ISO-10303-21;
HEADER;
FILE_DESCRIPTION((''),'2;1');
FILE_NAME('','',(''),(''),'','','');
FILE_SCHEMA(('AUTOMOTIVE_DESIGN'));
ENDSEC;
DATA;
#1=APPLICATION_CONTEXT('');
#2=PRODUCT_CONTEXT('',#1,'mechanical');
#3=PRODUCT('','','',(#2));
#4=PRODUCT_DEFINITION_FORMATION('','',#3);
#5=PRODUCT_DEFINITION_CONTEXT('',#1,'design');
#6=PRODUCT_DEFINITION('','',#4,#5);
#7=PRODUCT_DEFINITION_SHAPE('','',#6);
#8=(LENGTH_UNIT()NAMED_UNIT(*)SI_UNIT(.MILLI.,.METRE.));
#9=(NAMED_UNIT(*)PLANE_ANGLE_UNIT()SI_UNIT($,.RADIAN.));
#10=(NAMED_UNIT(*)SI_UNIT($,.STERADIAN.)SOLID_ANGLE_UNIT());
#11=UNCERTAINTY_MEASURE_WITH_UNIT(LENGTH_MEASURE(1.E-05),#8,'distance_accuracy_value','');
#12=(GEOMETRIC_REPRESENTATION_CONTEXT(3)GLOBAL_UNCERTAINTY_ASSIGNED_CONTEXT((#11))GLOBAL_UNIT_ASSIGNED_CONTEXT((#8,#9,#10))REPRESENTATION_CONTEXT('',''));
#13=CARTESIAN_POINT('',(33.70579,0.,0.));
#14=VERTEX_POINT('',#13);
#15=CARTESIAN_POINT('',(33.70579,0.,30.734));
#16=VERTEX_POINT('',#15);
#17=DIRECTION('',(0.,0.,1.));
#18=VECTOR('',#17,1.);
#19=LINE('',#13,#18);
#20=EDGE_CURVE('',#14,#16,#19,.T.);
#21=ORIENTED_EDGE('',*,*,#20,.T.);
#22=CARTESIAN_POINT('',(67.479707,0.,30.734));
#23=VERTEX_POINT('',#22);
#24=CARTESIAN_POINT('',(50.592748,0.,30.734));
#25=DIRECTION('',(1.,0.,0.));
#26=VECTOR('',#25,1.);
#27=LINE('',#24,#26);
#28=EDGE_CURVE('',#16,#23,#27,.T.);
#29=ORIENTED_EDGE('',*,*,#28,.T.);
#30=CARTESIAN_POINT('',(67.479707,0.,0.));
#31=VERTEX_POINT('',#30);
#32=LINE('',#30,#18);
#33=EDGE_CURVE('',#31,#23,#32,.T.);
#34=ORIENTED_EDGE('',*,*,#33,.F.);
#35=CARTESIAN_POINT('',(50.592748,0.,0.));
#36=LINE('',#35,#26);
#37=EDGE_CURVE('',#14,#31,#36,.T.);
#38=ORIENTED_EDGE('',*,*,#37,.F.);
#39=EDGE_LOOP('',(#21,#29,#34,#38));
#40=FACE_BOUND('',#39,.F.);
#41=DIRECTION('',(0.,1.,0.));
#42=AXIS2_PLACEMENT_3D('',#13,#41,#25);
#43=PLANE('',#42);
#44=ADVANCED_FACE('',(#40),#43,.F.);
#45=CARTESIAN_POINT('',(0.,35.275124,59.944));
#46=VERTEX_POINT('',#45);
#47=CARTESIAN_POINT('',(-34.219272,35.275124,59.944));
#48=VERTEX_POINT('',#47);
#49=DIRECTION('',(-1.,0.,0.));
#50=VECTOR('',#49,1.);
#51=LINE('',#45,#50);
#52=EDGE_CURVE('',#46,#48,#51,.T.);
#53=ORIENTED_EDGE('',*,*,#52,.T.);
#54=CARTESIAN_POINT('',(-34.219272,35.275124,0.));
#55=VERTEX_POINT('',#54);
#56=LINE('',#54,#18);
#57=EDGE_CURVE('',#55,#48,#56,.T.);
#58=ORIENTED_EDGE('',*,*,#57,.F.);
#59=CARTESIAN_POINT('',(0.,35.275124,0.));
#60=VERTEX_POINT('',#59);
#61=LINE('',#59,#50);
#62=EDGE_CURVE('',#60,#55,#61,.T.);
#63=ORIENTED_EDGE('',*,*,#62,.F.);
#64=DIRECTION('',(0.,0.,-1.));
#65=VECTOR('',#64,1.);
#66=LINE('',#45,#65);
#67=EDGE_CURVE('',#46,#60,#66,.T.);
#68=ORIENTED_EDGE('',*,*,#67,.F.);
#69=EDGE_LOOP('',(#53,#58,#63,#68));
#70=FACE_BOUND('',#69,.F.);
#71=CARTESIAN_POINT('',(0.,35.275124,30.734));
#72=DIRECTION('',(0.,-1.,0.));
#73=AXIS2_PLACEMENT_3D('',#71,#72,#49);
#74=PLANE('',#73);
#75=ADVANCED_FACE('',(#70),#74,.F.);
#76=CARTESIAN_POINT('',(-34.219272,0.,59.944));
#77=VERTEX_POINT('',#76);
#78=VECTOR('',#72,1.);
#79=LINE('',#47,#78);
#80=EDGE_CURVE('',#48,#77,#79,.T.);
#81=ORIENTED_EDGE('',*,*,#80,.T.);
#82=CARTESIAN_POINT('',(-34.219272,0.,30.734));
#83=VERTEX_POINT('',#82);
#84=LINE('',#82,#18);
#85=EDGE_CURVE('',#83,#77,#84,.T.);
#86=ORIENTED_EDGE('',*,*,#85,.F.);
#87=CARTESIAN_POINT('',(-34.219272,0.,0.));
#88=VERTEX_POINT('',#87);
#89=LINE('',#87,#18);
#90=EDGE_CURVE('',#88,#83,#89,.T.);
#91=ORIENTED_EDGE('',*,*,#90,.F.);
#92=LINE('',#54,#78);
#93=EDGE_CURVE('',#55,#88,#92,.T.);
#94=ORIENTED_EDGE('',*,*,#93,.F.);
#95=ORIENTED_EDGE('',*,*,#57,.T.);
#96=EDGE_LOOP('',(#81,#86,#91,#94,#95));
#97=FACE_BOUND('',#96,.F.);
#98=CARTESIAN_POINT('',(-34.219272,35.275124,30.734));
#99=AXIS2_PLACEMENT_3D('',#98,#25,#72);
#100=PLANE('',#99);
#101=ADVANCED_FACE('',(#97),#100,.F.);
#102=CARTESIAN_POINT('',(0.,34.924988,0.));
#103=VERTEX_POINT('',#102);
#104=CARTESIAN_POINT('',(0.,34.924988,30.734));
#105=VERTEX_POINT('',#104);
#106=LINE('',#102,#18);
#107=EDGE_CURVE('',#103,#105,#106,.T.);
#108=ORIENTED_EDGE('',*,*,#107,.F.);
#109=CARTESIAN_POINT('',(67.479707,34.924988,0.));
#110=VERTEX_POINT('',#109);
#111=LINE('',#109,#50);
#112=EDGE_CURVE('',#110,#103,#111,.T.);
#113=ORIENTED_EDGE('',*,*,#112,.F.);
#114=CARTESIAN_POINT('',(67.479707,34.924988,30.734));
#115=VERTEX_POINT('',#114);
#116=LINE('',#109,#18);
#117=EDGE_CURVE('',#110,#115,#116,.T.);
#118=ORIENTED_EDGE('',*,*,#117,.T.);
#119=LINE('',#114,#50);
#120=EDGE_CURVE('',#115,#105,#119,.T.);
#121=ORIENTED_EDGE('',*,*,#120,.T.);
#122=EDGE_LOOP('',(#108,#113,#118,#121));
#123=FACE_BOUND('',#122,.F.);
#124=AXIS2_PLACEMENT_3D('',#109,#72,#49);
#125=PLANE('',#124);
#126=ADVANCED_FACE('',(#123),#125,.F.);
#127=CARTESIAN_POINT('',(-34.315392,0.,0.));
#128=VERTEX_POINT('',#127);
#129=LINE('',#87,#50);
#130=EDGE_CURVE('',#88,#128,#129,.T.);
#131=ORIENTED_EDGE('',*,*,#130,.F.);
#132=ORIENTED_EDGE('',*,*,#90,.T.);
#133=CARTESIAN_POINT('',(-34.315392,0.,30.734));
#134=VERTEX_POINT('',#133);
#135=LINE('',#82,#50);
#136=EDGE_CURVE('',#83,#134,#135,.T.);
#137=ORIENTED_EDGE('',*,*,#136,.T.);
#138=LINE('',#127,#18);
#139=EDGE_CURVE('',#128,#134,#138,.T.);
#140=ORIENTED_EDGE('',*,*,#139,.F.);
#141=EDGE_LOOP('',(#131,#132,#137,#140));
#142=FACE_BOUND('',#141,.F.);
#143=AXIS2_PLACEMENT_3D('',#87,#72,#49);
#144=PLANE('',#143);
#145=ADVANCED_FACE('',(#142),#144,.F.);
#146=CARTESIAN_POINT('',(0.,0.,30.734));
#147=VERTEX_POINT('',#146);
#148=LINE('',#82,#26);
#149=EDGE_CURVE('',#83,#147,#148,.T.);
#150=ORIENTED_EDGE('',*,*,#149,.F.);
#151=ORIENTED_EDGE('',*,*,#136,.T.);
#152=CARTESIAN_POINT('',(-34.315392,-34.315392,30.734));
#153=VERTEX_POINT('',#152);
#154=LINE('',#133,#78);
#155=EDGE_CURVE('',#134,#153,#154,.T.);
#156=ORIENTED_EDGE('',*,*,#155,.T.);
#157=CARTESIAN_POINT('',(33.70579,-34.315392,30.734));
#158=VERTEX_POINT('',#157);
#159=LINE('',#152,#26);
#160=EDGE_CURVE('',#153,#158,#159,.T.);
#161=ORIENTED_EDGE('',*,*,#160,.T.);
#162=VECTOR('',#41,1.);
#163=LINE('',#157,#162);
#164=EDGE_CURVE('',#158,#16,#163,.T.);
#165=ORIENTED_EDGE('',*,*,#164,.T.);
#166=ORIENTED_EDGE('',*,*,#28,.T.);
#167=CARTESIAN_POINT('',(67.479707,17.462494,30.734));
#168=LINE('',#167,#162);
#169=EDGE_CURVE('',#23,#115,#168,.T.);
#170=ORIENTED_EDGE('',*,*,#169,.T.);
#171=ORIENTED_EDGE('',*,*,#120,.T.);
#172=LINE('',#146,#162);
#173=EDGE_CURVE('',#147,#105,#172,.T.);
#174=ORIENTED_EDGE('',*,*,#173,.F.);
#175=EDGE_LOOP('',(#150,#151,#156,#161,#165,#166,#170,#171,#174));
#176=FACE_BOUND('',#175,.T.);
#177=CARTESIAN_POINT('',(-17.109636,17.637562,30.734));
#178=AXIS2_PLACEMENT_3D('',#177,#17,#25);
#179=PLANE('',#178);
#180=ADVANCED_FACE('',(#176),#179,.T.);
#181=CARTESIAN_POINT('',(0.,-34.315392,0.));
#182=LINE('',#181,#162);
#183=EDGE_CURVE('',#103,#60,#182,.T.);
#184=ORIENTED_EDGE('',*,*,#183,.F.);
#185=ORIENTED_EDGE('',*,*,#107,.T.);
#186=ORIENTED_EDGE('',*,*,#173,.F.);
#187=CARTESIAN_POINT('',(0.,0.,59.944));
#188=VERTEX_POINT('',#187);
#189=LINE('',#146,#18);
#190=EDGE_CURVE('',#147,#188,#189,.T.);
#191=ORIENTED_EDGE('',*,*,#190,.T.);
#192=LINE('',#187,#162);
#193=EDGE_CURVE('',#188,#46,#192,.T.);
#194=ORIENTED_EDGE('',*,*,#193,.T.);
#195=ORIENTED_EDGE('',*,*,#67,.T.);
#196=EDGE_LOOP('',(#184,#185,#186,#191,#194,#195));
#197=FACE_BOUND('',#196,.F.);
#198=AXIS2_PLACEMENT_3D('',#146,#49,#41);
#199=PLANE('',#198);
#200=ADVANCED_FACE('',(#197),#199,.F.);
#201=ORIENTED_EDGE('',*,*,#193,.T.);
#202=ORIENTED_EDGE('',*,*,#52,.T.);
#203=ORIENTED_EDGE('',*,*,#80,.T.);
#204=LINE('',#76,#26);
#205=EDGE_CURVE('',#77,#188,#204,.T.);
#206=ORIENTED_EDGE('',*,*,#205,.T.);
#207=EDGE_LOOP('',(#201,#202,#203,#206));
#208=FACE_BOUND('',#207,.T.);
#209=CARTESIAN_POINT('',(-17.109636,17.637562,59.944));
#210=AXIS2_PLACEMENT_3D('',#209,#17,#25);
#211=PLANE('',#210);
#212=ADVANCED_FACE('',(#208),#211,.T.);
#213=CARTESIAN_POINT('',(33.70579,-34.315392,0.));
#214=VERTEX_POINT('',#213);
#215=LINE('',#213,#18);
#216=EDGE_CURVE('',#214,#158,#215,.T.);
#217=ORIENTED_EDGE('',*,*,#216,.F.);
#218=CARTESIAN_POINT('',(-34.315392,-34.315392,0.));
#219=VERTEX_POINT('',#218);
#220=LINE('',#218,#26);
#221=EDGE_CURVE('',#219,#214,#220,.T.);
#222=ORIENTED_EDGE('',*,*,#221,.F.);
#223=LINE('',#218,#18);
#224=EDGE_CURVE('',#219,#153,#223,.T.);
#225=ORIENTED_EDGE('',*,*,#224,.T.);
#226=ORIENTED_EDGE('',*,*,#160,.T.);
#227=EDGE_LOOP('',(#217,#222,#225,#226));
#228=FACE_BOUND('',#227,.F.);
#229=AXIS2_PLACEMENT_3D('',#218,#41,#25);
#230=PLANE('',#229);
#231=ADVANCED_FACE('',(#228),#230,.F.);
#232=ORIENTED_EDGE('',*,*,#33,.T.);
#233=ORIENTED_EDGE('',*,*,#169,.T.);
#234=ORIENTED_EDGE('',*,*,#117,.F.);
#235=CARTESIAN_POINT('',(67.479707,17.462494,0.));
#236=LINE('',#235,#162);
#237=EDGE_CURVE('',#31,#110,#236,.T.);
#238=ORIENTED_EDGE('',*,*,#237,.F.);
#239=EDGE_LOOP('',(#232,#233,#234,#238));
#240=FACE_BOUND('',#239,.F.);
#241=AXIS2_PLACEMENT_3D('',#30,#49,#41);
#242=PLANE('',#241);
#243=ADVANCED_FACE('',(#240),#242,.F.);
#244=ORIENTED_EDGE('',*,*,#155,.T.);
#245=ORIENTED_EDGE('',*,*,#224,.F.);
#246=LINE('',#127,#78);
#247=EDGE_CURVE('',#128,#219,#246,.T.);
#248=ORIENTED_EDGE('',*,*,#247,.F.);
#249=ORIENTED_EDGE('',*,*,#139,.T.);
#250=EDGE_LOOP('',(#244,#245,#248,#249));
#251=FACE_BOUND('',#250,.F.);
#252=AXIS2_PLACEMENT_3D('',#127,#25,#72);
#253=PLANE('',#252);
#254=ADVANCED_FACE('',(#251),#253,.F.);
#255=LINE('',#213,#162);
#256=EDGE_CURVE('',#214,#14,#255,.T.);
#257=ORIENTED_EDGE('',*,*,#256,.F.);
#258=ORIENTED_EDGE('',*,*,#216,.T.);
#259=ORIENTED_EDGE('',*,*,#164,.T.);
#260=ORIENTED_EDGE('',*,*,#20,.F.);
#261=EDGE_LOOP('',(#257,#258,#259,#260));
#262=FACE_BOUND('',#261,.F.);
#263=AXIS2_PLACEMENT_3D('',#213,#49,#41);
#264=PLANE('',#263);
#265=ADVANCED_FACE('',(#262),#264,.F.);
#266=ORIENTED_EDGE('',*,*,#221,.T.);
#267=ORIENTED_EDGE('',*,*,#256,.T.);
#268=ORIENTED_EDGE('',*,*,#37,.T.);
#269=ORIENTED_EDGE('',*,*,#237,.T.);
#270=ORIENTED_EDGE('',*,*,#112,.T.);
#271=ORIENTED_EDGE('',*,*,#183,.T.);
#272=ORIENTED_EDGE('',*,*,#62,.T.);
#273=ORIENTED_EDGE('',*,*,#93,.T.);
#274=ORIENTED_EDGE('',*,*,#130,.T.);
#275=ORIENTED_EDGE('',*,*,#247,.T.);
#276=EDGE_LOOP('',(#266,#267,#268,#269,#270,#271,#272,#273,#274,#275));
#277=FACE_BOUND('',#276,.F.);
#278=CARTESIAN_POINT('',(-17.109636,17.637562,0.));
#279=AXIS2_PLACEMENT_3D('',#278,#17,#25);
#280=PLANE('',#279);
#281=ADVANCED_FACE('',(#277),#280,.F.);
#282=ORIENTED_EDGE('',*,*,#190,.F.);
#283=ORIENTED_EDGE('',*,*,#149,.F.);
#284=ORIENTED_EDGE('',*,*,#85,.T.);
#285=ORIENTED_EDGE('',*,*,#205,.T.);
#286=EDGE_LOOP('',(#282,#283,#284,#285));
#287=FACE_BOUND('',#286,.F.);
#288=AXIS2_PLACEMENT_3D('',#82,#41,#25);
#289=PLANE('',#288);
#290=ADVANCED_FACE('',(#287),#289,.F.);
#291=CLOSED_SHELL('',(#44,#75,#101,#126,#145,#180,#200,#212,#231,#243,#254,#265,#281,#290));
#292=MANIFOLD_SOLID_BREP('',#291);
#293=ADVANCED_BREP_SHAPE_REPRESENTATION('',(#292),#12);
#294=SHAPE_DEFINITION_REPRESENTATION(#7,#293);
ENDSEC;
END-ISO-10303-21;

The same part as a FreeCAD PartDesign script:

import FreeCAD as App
import Part
import Sketcher
from FreeCAD import Vector
Q = App.Units.Quantity

doc = App.newDocument("Part")
body = doc.addObject("PartDesign::Body", "Body")

# Sketch on XY plane
sketch1 = body.newObject("Sketcher::SketchObject", "Sketch")
sketch1.AttachmentSupport = (doc.getObject("XY_Plane"), [""])
sketch1.MapMode = "FlatFace"
sketch1.addGeometry(Part.LineSegment(Vector(-27.523274, 56.610372, 0), Vector(-122.91266, 56.610372, 0)), False)
sketch1.addGeometry(Part.LineSegment(Vector(-122.91266, 56.610372, 0), Vector(-122.91266, -59.505619, 0)), False)
sketch1.addGeometry(Part.LineSegment(Vector(-122.91266, -59.505619, 0), Vector(17.935978, -59.505619, 0)), False)
sketch1.addGeometry(Part.LineSegment(Vector(17.935978, -59.505619, 0), Vector(17.935978, 0, 0)), False)
sketch1.addGeometry(Part.LineSegment(Vector(17.935978, 0, 0), Vector(-27.523274, 0, 0)), False)
sketch1.addGeometry(Part.LineSegment(Vector(-27.523274, 0, 0), Vector(-27.523274, 56.610372, 0)), False)
sketch1.addConstraint(Sketcher.Constraint("Coincident", 0, 2, 1, 1))
sketch1.addConstraint(Sketcher.Constraint("Coincident", 1, 2, 2, 1))
sketch1.addConstraint(Sketcher.Constraint("Coincident", 2, 2, 3, 1))
sketch1.addConstraint(Sketcher.Constraint("Coincident", 3, 2, 4, 1))
sketch1.addConstraint(Sketcher.Constraint("Coincident", 4, 2, 5, 1))
sketch1.addConstraint(Sketcher.Constraint("Coincident", 5, 2, 0, 1))
sketch1.addConstraint(Sketcher.Constraint("Horizontal", 0))
sketch1.addConstraint(Sketcher.Constraint("Vertical", 1))
sketch1.addConstraint(Sketcher.Constraint("Horizontal", 2))
sketch1.addConstraint(Sketcher.Constraint("Vertical", 3))
sketch1.addConstraint(Sketcher.Constraint("Horizontal", 4))
sketch1.addConstraint(Sketcher.Constraint("Vertical", 5))
sketch1.addConstraint(Sketcher.Constraint("PointOnObject", 3, 2, -1))
sketch1.addConstraint(Sketcher.Constraint("DistanceX", 2, 1, 2, 2, 140.848638))
sketch1.addConstraint(Sketcher.Constraint("DistanceX", 4, 2, 4, 1, 45.459252))
sketch1.addConstraint(Sketcher.Constraint("DistanceY", 1, 2, 1, 1, 116.115991))
sketch1.addConstraint(Sketcher.Constraint("DistanceY", 3, 1, 3, 2, 59.505619))
sketch1.addConstraint(Sketcher.Constraint("DistanceX", 0, 2, -1, 1, 122.91266))
pad1 = body.newObject("PartDesign::Pad", "Pad")
pad1.Profile = sketch1
pad1.Length = Q("1.52 in")

# Sketch on XY plane
sketch2 = body.newObject("Sketcher::SketchObject", "Sketch001")
sketch2.AttachmentSupport = (doc.getObject("XY_Plane"), [""])
sketch2.MapMode = "FlatFace"
sketch2.AttachmentOffset = App.Placement(Vector(0, 0, 1.52 * 25.4), App.Rotation())
sketch2.addGeometry(Part.LineSegment(Vector(-122.91266, 0, 0), Vector(-122.91266, -59.505619, 0)), False)
sketch2.addGeometry(Part.LineSegment(Vector(-122.91266, -59.505619, 0), Vector(-77.239774, -59.505619, 0)), False)
sketch2.addGeometry(Part.LineSegment(Vector(-77.239774, -59.505619, 0), Vector(-77.239774, 0, 0)), False)
sketch2.addGeometry(Part.LineSegment(Vector(-77.239774, 0, 0), Vector(-122.91266, 0, 0)), False)
sketch2.addConstraint(Sketcher.Constraint("Coincident", 0, 2, 1, 1))
sketch2.addConstraint(Sketcher.Constraint("Coincident", 1, 2, 2, 1))
sketch2.addConstraint(Sketcher.Constraint("Coincident", 2, 2, 3, 1))
sketch2.addConstraint(Sketcher.Constraint("Coincident", 3, 2, 0, 1))
sketch2.addConstraint(Sketcher.Constraint("Vertical", 0))
sketch2.addConstraint(Sketcher.Constraint("Horizontal", 1))
sketch2.addConstraint(Sketcher.Constraint("Vertical", 2))
sketch2.addConstraint(Sketcher.Constraint("Horizontal", 3))
sketch2.addConstraint(Sketcher.Constraint("PointOnObject", 2, 2, -1))
sketch2.addConstraint(Sketcher.Constraint("DistanceY", 0, 2, 0, 1, 59.505619))
sketch2.addConstraint(Sketcher.Constraint("DistanceX", 1, 1, 1, 2, 45.672886))
sketch2.addConstraint(Sketcher.Constraint("DistanceX", 0, 2, -1, 1, 122.91266))
pad2 = body.newObject("PartDesign::Pad", "Pad001")
pad2.Profile = sketch2
pad2.Length = Q("1.39 in")
body2 = doc.addObject("PartDesign::Body", "Body001")

# Sketch on XY plane
sketch3 = body2.newObject("Sketcher::SketchObject", "Sketch002")
sketch3.AttachmentSupport = (doc.getObject("XY_Plane001"), [""])
sketch3.MapMode = "FlatFace"
sketch3.addGeometry(Part.LineSegment(Vector(0, 35.275124, 0), Vector(-34.219272, 35.275124, 0)), False)
sketch3.addGeometry(Part.LineSegment(Vector(-34.219272, 35.275124, 0), Vector(-34.219272, 0, 0)), False)
sketch3.addGeometry(Part.LineSegment(Vector(-34.219272, 0, 0), Vector(-34.315392, 0, 0)), False)
sketch3.addGeometry(Part.LineSegment(Vector(-34.315392, 0, 0), Vector(-34.315392, -34.315392, 0)), False)
sketch3.addGeometry(Part.LineSegment(Vector(-34.315392, -34.315392, 0), Vector(33.70579, -34.315392, 0)), False)
sketch3.addGeometry(Part.LineSegment(Vector(33.70579, -34.315392, 0), Vector(33.70579, 0, 0)), False)
sketch3.addGeometry(Part.LineSegment(Vector(33.70579, 0, 0), Vector(67.479707, 0, 0)), False)
sketch3.addGeometry(Part.LineSegment(Vector(67.479707, 0, 0), Vector(67.479707, 34.924988, 0)), False)
sketch3.addGeometry(Part.LineSegment(Vector(67.479707, 34.924988, 0), Vector(0, 34.924988, 0)), False)
sketch3.addGeometry(Part.LineSegment(Vector(0, 34.924988, 0), Vector(0, 35.275124, 0)), False)
sketch3.addConstraint(Sketcher.Constraint("Coincident", 0, 2, 1, 1))
sketch3.addConstraint(Sketcher.Constraint("Coincident", 1, 2, 2, 1))
sketch3.addConstraint(Sketcher.Constraint("Coincident", 2, 2, 3, 1))
sketch3.addConstraint(Sketcher.Constraint("Coincident", 3, 2, 4, 1))
sketch3.addConstraint(Sketcher.Constraint("Coincident", 4, 2, 5, 1))
sketch3.addConstraint(Sketcher.Constraint("Coincident", 5, 2, 6, 1))
sketch3.addConstraint(Sketcher.Constraint("Coincident", 6, 2, 7, 1))
sketch3.addConstraint(Sketcher.Constraint("Coincident", 7, 2, 8, 1))
sketch3.addConstraint(Sketcher.Constraint("Coincident", 8, 2, 9, 1))
sketch3.addConstraint(Sketcher.Constraint("Coincident", 9, 2, 0, 1))
sketch3.addConstraint(Sketcher.Constraint("Horizontal", 0))
sketch3.addConstraint(Sketcher.Constraint("Vertical", 1))
sketch3.addConstraint(Sketcher.Constraint("Horizontal", 2))
sketch3.addConstraint(Sketcher.Constraint("Vertical", 3))
sketch3.addConstraint(Sketcher.Constraint("Horizontal", 4))
sketch3.addConstraint(Sketcher.Constraint("Vertical", 5))
sketch3.addConstraint(Sketcher.Constraint("Horizontal", 6))
sketch3.addConstraint(Sketcher.Constraint("Vertical", 7))
sketch3.addConstraint(Sketcher.Constraint("Horizontal", 8))
sketch3.addConstraint(Sketcher.Constraint("Vertical", 9))
sketch3.addConstraint(Sketcher.Constraint("PointOnObject", 1, 2, -1))
sketch3.addConstraint(Sketcher.Constraint("PointOnObject", 5, 2, -1))
sketch3.addConstraint(Sketcher.Constraint("PointOnObject", 8, 2, -2))
sketch3.addConstraint(Sketcher.Constraint("DistanceX", 2, 2, 2, 1, 0.09612))
sketch3.addConstraint(Sketcher.Constraint("DistanceX", 4, 1, 4, 2, 68.021182))
sketch3.addConstraint(Sketcher.Constraint("DistanceX", 2, 2, 6, 2, 101.7951))
sketch3.addConstraint(Sketcher.Constraint("DistanceX", 0, 2, 0, 1, 34.219272))
sketch3.addConstraint(Sketcher.Constraint("DistanceY", 1, 2, 1, 1, 35.275124))
sketch3.addConstraint(Sketcher.Constraint("DistanceY", 3, 2, 3, 1, 34.315392))
sketch3.addConstraint(Sketcher.Constraint("DistanceY", 7, 1, 7, 2, 34.924988))
pad3 = body2.newObject("PartDesign::Pad", "Pad002")
pad3.Profile = sketch3
pad3.Length = Q("1.21 in")

# Sketch on XY plane
sketch4 = body2.newObject("Sketcher::SketchObject", "Sketch003")
sketch4.AttachmentSupport = (doc.getObject("XY_Plane001"), [""])
sketch4.MapMode = "FlatFace"
sketch4.AttachmentOffset = App.Placement(Vector(0, 0, 1.21 * 25.4), App.Rotation())
sketch4.addGeometry(Part.LineSegment(Vector(0, 35.275124, 0), Vector(-34.219272, 35.275124, 0)), False)
sketch4.addGeometry(Part.LineSegment(Vector(-34.219272, 35.275124, 0), Vector(-34.219272, 0, 0)), False)
sketch4.addGeometry(Part.LineSegment(Vector(-34.219272, 0, 0), Vector(0, 0, 0)), False)
sketch4.addGeometry(Part.LineSegment(Vector(0, 0, 0), Vector(0, 35.275124, 0)), False)
sketch4.addConstraint(Sketcher.Constraint("Coincident", 0, 2, 1, 1))
sketch4.addConstraint(Sketcher.Constraint("Coincident", 1, 2, 2, 1))
sketch4.addConstraint(Sketcher.Constraint("Coincident", 2, 2, 3, 1))
sketch4.addConstraint(Sketcher.Constraint("Coincident", 3, 2, 0, 1))
sketch4.addConstraint(Sketcher.Constraint("Horizontal", 0))
sketch4.addConstraint(Sketcher.Constraint("Vertical", 1))
sketch4.addConstraint(Sketcher.Constraint("Horizontal", 2))
sketch4.addConstraint(Sketcher.Constraint("Vertical", 3))
sketch4.addConstraint(Sketcher.Constraint("Coincident", 2, 2, -1, 1))
sketch4.addConstraint(Sketcher.Constraint("DistanceX", 0, 2, 0, 1, 34.219272))
sketch4.addConstraint(Sketcher.Constraint("DistanceY", 1, 2, 1, 1, 35.275124))
pad4 = body2.newObject("PartDesign::Pad", "Pad003")
pad4.Profile = sketch4
pad4.Length = Q("1.15 in")
body.Visibility = False

doc.recompute()
